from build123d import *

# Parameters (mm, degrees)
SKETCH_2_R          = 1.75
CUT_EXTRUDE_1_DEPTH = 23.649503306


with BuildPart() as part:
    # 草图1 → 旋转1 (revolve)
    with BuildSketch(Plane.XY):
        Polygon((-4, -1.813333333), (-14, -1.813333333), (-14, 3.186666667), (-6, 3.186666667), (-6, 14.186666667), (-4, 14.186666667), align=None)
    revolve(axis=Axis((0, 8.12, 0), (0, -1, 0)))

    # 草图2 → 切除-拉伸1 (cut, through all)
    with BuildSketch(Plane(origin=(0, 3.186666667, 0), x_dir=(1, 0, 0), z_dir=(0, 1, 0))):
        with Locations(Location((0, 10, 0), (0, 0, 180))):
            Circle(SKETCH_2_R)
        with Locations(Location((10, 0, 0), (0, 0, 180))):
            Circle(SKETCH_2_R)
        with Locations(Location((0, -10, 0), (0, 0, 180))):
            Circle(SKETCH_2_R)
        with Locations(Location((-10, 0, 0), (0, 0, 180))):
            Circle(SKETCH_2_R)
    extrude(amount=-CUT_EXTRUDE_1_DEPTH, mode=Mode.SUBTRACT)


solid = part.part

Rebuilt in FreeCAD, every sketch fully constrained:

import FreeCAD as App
import Part
import Sketcher
from FreeCAD import Vector
Q = App.Units.Quantity


def add_polygon(sketch, points):
    """Adds a closed chain of lines whose ends are joined by coincident constraints."""
    first, n = sketch.GeometryCount, len(points)
    for a, b in zip(points, points[1:] + points[:1]):
        sketch.addGeometry(Part.LineSegment(App.Vector(*a, 0), App.Vector(*b, 0)), False)
    for i in range(n):
        sketch.addConstraint(Sketcher.Constraint("Coincident", first + i, 2, first + (i + 1) % n, 1))

doc = App.newDocument("Part")
body = doc.addObject("PartDesign::Body", "Body")

# Sketch on XY plane
sketch1 = doc.addObject("Sketcher::SketchObject", "Sketch")
body.addObject(sketch1)
sketch1.AttachmentSupport = (doc.XY_Plane, [""])
sketch1.MapMode = "FlatFace"
add_polygon(sketch1, [(-14, -1.813333), (-4, -1.813333), (-4, 14.186667), (-6, 14.186667), (-6, 3.186667), (-14, 3.186667)])  # lines 0-5
sketch1.addConstraint([
    Sketcher.Constraint("Horizontal", 0),
    Sketcher.Constraint("Vertical", 1),
    Sketcher.Constraint("Horizontal", 2),
    Sketcher.Constraint("Vertical", 3),
    Sketcher.Constraint("Horizontal", 4),
    Sketcher.Constraint("Vertical", 5),
    Sketcher.Constraint("DistanceX", 0, 1, 0, 2, Q("10 mm")),
    Sketcher.Constraint("DistanceX", 2, 2, 2, 1, Q("2 mm")),
    Sketcher.Constraint("DistanceY", 1, 1, 1, 2, Q("16 mm")),
    Sketcher.Constraint("DistanceY", 3, 2, 3, 1, Q("11 mm")),
    Sketcher.Constraint("DistanceX", 0, 2, -1, 1, Q("4 mm")),
    Sketcher.Constraint("DistanceY", 0, 2, -1, 1, Q("1.813333 mm")),
])
revolution = doc.addObject("PartDesign::Revolution", "Revolution")
body.addObject(revolution)
revolution.Profile = sketch1
revolution.ReferenceAxis = (sketch1, ["V_Axis"])
revolution.Angle = 360

# Sketch on XZ plane
sketch2 = doc.addObject("Sketcher::SketchObject", "Sketch001")
body.addObject(sketch2)
sketch2.AttachmentSupport = (doc.XZ_Plane, [""])
sketch2.MapMode = "FlatFace"
sketch2.AttachmentOffset = App.Placement(Vector(0, 0, -3.186667), App.Rotation())
sketch2.addGeometry([
    Part.Circle(Vector(0, -10, 0), Vector(0, 0, 1), 1.75),
    Part.Circle(Vector(10, 0, 0), Vector(0, 0, 1), 1.75),
    Part.Circle(Vector(0, 10, 0), Vector(0, 0, 1), 1.75),
    Part.Circle(Vector(-10, 0, 0), Vector(0, 0, 1), 1.75),
], False)
sketch2.addConstraint([
    Sketcher.Constraint("Equal", 0, 1),
    Sketcher.Constraint("Equal", 1, 2),
    Sketcher.Constraint("Equal", 2, 3),
    Sketcher.Constraint("Symmetric", 0, 3, 2, 3, -1, 1),
    Sketcher.Constraint("Symmetric", 1, 3, 3, 3, -1, 1),
    Sketcher.Constraint("PointOnObject", 0, 3, -2),
    Sketcher.Constraint("PointOnObject", 1, 3, -1),
    Sketcher.Constraint("Diameter", 0, Q("3.5 mm")),
    Sketcher.Constraint("DistanceY", 0, 3, -1, 1, Q("10 mm")),
    Sketcher.Constraint("DistanceX", -1, 1, 1, 3, Q("10 mm")),
])
pocket1 = doc.addObject("PartDesign::Pocket", "Pocket")
body.addObject(pocket1)
pocket1.Profile = sketch2
pocket1.Type = "ThroughAll"
pocket1.Reversed = True

doc.recompute()
